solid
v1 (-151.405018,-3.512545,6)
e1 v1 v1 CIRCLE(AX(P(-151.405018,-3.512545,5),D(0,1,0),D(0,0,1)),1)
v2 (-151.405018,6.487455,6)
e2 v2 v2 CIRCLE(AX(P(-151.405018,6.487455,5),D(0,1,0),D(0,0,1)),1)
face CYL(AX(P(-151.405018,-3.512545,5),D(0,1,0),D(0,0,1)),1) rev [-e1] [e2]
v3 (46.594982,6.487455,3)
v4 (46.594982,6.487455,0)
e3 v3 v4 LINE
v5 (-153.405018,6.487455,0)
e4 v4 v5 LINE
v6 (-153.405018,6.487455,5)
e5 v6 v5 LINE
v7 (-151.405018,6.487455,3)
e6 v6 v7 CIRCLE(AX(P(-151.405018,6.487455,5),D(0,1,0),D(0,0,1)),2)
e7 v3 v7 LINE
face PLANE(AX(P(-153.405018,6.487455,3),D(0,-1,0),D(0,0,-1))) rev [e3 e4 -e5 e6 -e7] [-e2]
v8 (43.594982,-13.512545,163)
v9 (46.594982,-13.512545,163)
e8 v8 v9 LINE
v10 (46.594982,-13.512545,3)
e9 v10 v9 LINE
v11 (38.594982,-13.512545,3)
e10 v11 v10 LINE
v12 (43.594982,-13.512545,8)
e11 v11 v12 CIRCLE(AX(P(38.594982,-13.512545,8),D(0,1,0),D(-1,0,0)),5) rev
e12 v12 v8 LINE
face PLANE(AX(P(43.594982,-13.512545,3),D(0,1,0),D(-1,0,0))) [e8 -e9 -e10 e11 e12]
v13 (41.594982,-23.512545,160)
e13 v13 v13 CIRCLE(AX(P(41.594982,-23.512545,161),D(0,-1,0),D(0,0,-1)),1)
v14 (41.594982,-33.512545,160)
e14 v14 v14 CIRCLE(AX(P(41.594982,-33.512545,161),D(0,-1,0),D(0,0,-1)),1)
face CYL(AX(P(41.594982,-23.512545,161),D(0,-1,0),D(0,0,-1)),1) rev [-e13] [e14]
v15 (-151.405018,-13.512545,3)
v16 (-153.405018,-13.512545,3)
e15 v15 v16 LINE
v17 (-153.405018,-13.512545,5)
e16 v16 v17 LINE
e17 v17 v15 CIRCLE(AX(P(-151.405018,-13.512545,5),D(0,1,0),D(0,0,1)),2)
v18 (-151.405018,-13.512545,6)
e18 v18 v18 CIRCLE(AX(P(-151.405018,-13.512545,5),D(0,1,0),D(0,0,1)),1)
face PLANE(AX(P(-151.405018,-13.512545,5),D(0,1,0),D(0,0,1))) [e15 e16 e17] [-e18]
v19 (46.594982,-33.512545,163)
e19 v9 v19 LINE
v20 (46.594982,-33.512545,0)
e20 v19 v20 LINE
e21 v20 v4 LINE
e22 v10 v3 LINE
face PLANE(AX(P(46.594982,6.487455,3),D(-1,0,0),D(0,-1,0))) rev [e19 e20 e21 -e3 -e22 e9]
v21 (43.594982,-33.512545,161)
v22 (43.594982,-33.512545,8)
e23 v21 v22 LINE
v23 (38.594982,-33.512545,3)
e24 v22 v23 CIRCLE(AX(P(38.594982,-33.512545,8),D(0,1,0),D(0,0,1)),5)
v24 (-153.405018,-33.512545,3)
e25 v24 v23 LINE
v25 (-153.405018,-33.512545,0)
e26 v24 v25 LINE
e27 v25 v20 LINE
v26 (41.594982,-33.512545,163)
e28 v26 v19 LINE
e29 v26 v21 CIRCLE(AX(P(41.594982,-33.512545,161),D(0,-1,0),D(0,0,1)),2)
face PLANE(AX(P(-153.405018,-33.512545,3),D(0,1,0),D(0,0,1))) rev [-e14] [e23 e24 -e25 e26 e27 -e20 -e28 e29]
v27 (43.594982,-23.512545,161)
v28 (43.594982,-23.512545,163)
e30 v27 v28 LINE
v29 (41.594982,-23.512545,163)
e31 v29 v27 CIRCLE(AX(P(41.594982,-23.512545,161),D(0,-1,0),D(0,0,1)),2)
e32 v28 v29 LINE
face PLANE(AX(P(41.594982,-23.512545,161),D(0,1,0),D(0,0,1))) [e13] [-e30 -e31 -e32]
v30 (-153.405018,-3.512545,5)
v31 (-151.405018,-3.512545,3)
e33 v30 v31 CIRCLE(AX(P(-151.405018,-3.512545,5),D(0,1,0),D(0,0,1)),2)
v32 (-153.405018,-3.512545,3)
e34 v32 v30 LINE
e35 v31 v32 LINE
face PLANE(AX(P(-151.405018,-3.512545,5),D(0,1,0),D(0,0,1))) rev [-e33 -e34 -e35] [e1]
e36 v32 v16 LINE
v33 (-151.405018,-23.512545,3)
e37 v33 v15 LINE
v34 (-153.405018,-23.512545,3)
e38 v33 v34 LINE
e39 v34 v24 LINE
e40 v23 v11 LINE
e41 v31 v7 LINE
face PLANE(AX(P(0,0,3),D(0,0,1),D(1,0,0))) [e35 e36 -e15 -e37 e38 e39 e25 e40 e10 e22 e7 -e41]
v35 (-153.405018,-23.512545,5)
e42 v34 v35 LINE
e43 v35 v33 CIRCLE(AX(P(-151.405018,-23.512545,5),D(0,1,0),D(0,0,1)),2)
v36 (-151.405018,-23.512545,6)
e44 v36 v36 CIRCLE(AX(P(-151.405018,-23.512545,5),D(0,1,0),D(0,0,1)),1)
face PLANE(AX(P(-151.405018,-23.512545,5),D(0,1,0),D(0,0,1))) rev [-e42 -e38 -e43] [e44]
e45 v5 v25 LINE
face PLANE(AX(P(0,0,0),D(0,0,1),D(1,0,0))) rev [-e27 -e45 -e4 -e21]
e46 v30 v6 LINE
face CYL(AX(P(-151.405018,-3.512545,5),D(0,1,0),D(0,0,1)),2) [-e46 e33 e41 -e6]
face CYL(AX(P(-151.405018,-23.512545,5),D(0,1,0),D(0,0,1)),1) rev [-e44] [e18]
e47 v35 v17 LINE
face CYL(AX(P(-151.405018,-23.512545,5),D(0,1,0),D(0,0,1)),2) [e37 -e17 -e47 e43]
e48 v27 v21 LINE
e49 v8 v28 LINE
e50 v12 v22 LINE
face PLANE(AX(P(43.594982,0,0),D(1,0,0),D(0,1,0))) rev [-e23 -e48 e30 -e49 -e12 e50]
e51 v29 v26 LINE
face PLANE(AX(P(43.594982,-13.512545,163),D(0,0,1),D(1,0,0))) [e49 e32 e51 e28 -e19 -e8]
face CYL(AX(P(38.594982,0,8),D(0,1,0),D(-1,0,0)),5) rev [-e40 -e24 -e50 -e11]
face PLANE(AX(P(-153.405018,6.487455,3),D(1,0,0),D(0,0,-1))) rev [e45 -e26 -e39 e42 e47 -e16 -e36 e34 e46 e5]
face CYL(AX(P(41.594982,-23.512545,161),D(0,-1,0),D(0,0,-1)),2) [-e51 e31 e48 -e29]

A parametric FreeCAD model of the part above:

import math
import FreeCAD as App
import Part
import Sketcher

V = App.Vector
Q = App.Units.Quantity


def edges_at(feature, points):
    """Names of the edges that pass closest to the given points."""
    edges = feature.Shape.Edges
    near = lambda p: min(range(len(edges)), key=lambda i: edges[i].distToShape(Part.Vertex(*p))[0])
    return sorted({f"Edge{near(p) + 1}" for p in points})


def add_polygon(sketch, points):
    """Adds a closed chain of lines whose ends are joined by coincident constraints."""
    first, n = sketch.GeometryCount, len(points)
    for a, b in zip(points, points[1:] + points[:1]):
        sketch.addGeometry(Part.LineSegment(App.Vector(*a, 0), App.Vector(*b, 0)), False)
    for i in range(n):
        sketch.addConstraint(Sketcher.Constraint("Coincident", first + i, 2, first + (i + 1) % n, 1))

doc = App.newDocument("Part")
params = doc.addObject("Spreadsheet::Sheet", "Params")
for row, (alias, value) in enumerate([
    ("sketch1_width", "200 mm"),
    ("sketch1_height", "40 mm"),
    ("pad1_length", "3 mm"),
    ("sketch2_width", "20 mm"),
    ("sketch2_height", "160 mm"),
    ("pad2_length", "3 mm"),
    ("fillet_radius", "5 mm"),
    ("sketch3_diameter", "2 mm"),
    ("sketch3_radius", "2 mm"),
    ("pad3_length", "10 mm"),
    ("linearpattern_pitch", "20 mm"),
    ("sketch4_diameter", "2 mm"),
    ("sketch4_radius", "2 mm"),
    ("pad4_length", "10 mm"),
], start=1):
    params.set(f"A{row}", alias)
    params.set(f"B{row}", "=" + value)
    params.setAlias(f"B{row}", alias)

body = doc.addObject("PartDesign::Body", "Body")

# Sketch on XY plane
sketch1 = doc.addObject("Sketcher::SketchObject", "Sketch")
body.addObject(sketch1)
sketch1.AttachmentSupport = (doc.XY_Plane, [""])
sketch1.MapMode = "FlatFace"
add_polygon(sketch1, [(-153.405018, 6.487455), (-153.405018, -33.512545), (46.594982, -33.512545), (46.594982, 6.487455)])  # lines 0-3
sketch1.addConstraint([
    Sketcher.Constraint("Vertical", 0),
    Sketcher.Constraint("Horizontal", 1),
    Sketcher.Constraint("Vertical", 2),
    Sketcher.Constraint("Horizontal", 3),
    Sketcher.Constraint("DistanceX", 1, 1, 1, 2, Q("200 mm")),
    Sketcher.Constraint("DistanceY", 0, 2, 0, 1, Q("40 mm")),
    Sketcher.Constraint("DistanceX", 0, 2, -1, 1, Q("153.405018 mm")),
    Sketcher.Constraint("DistanceY", 0, 2, -1, 1, Q("33.512545 mm")),
])
sketch1.setExpression("Constraints[8]", "Params.sketch1_width")
sketch1.setExpression("Constraints[9]", "Params.sketch1_height")
pad1 = doc.addObject("PartDesign::Pad", "Pad")
body.addObject(pad1)
pad1.Profile = sketch1
pad1.setExpression("Length", "Params.pad1_length")

# Sketch on YZ plane
sketch2 = doc.addObject("Sketcher::SketchObject", "Sketch001")
body.addObject(sketch2)
sketch2.AttachmentSupport = (doc.YZ_Plane, [""])
sketch2.MapMode = "FlatFace"
sketch2.AttachmentOffset = App.Placement(V(0, 0, 46.594982), App.Rotation())
add_polygon(sketch2, [(-13.512545, 163), (-33.512545, 163), (-33.512545, 3), (-13.512545, 3)])  # lines 0-3
sketch2.addConstraint([
    Sketcher.Constraint("Horizontal", 0),
    Sketcher.Constraint("Vertical", 1),
    Sketcher.Constraint("Horizontal", 2),
    Sketcher.Constraint("Vertical", 3),
    Sketcher.Constraint("DistanceX", 0, 2, 0, 1, Q("20 mm")),
    Sketcher.Constraint("DistanceY", 1, 2, 1, 1, Q("160 mm")),
    Sketcher.Constraint("DistanceY", -1, 1, 0, 2, Q("163 mm")),
    Sketcher.Constraint("DistanceX", 0, 2, -1, 1, Q("33.512545 mm")),
])
sketch2.setExpression("Constraints[8]", "Params.sketch2_width")
sketch2.setExpression("Constraints[9]", "Params.sketch2_height")
pad2 = doc.addObject("PartDesign::Pad", "Pad001")
body.addObject(pad2)
pad2.Profile = sketch2
pad2.setExpression("Length", "Params.pad2_length")
pad2.Reversed = True
doc.recompute()

fillet = doc.addObject("PartDesign::Fillet", "Fillet")
body.addObject(fillet)
fillet.Base = (pad2, edges_at(pad2, [(43.595, -23.513, 3)]))
fillet.setExpression("Radius", "Params.fillet_radius")

# Sketch on XZ plane
sketch3 = doc.addObject("Sketcher::SketchObject", "Sketch002")
body.addObject(sketch3)
sketch3.AttachmentSupport = (doc.XZ_Plane, [""])
sketch3.MapMode = "FlatFace"
sketch3.AttachmentOffset = App.Placement(V(0, 0, -6.487455), App.Rotation())
sketch3.addGeometry([
    Part.LineSegment(V(-153.405018, 3, 0), V(-153.405018, 5, 0)),
    Part.ArcOfCircle(Part.Circle(V(-151.405018, 5, 0), V(0, 0, 1), 2), math.radians(-90), math.radians(180)),
    Part.LineSegment(V(-151.405018, 3, 0), V(-153.405018, 3, 0)),
    Part.Circle(V(-151.405018, 5, 0), V(0, 0, 1), 1),
], False)
sketch3.addConstraint([
    Sketcher.Constraint("Tangent", 0, 2, 1, 2),
    Sketcher.Constraint("Tangent", 1, 1, 2, 1),
    Sketcher.Constraint("Coincident", 2, 2, 0, 1),
    Sketcher.Constraint("Vertical", 0),
    Sketcher.Constraint("Horizontal", 2),
    Sketcher.Constraint("Coincident", 3, 3, 1, 3),
    Sketcher.Constraint("Diameter", 3, Q("2 mm")),
    Sketcher.Constraint("Radius", 1, Q("2 mm")),
    Sketcher.Constraint("DistanceY", -1, 1, 1, 3, Q("5 mm")),
    Sketcher.Constraint("DistanceX", 1, 3, -1, 1, Q("151.405018 mm")),
])
sketch3.setExpression("Constraints[6]", "Params.sketch3_diameter")
sketch3.setExpression("Constraints[7]", "Params.sketch3_radius")
pad3 = doc.addObject("PartDesign::Pad", "Pad002")
body.addObject(pad3)
pad3.Profile = sketch3
pad3.setExpression("Length", "Params.pad3_length")
doc.recompute()

linearpattern = doc.addObject("PartDesign::LinearPattern", "LinearPattern")
body.addObject(linearpattern)
linearpattern.Originals = [pad3]
linearpattern.Direction = (doc.Y_Axis, [""])
linearpattern.Mode = "offset"
linearpattern.setExpression("Offset", "Params.linearpattern_pitch")
linearpattern.Occurrences = 2
linearpattern.Reversed = True
body.Tip = linearpattern

# Sketch on XZ plane
sketch4 = doc.addObject("Sketcher::SketchObject", "Sketch003")
body.addObject(sketch4)
sketch4.AttachmentSupport = (doc.XZ_Plane, [""])
sketch4.MapMode = "FlatFace"
sketch4.AttachmentOffset = App.Placement(V(0, 0, 33.512545), App.Rotation())
sketch4.addGeometry([
    Part.LineSegment(V(43.594982, 163, 0), V(41.594982, 163, 0)),
    Part.ArcOfCircle(Part.Circle(V(41.594982, 161, 0), V(0, 0, 1), 2), math.radians(90), math.radians(360)),
    Part.LineSegment(V(43.594982, 161, 0), V(43.594982, 163, 0)),
    Part.Circle(V(41.594982, 161, 0), V(0, 0, 1), 1),
], False)
sketch4.addConstraint([
    Sketcher.Constraint("Tangent", 0, 2, 1, 1),
    Sketcher.Constraint("Tangent", 1, 2, 2, 1),
    Sketcher.Constraint("Coincident", 2, 2, 0, 1),
    Sketcher.Constraint("Horizontal", 0),
    Sketcher.Constraint("Vertical", 2),
    Sketcher.Constraint("Coincident", 3, 3, 1, 3),
    Sketcher.Constraint("Diameter", 3, Q("2 mm")),
    Sketcher.Constraint("Radius", 1, Q("2 mm")),
    Sketcher.Constraint("DistanceY", -1, 1, 1, 3, Q("161 mm")),
    Sketcher.Constraint("DistanceX", -1, 1, 1, 3, Q("41.594982 mm")),
])
sketch4.setExpression("Constraints[6]", "Params.sketch4_diameter")
sketch4.setExpression("Constraints[7]", "Params.sketch4_radius")
pad4 = doc.addObject("PartDesign::Pad", "Pad003")
body.addObject(pad4)
pad4.Profile = sketch4
pad4.setExpression("Length", "Params.pad4_length")
pad4.Reversed = True

doc.recompute()
